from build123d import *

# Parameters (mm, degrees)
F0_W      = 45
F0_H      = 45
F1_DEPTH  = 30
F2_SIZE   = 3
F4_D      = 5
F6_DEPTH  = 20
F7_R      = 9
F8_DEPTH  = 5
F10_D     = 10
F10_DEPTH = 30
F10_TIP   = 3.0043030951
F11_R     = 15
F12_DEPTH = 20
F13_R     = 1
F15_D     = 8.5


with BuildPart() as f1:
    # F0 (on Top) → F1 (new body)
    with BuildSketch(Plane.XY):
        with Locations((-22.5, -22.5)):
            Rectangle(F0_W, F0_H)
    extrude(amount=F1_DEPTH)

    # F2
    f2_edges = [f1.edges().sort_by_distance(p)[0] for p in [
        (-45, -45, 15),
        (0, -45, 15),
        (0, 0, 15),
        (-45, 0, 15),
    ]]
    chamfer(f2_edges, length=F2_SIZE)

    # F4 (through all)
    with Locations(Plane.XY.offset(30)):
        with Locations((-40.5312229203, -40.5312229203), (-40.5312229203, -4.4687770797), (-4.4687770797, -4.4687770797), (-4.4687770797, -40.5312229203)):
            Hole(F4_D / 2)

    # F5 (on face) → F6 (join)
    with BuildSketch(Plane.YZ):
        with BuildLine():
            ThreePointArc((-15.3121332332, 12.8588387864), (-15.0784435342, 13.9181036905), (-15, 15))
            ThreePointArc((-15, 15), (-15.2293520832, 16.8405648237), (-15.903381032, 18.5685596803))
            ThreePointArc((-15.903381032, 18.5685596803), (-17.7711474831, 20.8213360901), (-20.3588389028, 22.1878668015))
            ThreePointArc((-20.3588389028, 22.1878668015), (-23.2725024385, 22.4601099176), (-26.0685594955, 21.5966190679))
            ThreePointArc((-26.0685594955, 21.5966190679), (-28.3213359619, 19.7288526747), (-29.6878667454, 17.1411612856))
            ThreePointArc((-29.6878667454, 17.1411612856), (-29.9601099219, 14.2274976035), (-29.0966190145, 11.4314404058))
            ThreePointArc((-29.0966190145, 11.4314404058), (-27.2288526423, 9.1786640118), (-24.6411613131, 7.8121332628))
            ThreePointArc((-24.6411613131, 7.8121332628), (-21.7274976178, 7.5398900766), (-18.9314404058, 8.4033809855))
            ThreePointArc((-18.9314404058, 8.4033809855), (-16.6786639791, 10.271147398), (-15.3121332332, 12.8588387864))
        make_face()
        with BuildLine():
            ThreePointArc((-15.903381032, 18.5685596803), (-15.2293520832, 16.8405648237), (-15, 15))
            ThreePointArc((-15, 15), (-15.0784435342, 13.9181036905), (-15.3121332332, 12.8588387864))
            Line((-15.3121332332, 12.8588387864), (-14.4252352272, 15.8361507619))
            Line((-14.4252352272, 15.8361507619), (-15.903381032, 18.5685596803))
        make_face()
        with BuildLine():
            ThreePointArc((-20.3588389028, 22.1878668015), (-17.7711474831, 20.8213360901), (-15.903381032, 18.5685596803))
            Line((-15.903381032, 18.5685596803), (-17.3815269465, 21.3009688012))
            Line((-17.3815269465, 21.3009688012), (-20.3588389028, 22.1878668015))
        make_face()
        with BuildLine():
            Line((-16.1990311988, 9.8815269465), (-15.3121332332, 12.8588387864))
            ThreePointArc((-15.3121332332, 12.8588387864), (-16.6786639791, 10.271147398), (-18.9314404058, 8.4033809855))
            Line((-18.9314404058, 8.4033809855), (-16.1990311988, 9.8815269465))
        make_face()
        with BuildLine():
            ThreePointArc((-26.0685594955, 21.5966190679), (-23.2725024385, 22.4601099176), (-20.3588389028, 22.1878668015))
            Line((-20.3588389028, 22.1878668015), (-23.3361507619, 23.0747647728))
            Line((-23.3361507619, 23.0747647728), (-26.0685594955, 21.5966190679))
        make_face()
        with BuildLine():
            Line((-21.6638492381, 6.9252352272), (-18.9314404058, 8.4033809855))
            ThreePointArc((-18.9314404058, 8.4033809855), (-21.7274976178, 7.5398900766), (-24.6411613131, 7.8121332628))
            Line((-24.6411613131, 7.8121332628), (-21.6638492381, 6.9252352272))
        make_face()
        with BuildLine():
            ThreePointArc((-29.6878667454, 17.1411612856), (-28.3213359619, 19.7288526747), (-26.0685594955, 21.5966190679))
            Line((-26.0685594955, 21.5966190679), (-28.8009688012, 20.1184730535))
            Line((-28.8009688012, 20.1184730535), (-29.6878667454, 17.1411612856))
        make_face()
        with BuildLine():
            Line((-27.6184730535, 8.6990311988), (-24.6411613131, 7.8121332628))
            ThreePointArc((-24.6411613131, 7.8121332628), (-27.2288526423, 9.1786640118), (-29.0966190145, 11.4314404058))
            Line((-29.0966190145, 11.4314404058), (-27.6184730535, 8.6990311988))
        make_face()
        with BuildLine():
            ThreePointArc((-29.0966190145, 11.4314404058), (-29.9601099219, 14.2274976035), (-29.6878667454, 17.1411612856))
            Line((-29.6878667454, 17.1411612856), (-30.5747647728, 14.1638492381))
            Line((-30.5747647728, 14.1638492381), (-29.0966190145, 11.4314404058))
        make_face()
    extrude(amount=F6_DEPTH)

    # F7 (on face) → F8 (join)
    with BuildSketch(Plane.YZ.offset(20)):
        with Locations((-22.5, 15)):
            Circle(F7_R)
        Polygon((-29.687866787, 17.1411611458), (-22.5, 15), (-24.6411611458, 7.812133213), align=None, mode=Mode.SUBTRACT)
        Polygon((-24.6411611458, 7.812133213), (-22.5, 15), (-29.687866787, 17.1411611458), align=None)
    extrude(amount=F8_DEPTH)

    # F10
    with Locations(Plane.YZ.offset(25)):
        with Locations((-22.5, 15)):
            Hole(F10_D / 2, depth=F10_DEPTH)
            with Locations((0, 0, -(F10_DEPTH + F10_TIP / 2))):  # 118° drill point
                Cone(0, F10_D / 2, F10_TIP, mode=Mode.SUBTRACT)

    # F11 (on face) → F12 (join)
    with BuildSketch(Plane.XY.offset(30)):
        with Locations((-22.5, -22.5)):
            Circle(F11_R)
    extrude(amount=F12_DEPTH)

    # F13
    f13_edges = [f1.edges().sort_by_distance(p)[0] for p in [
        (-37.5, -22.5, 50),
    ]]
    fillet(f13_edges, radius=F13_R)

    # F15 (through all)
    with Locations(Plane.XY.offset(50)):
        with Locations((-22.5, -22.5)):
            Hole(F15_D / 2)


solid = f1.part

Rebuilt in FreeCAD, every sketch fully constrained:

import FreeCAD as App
import Part
import Sketcher


def edges_at(feature, points):
    """Names of the edges that pass closest to the given points."""
    edges = feature.Shape.Edges
    near = lambda p: min(range(len(edges)), key=lambda i: edges[i].distToShape(Part.Vertex(*p))[0])
    return sorted({f"Edge{near(p) + 1}" for p in points})

doc = App.newDocument("Part")
body = doc.addObject("PartDesign::Body", "Body")

# Sketch on XY plane
sketch1 = doc.addObject("Sketcher::SketchObject", "Sketch")
body.addObject(sketch1)
sketch1.AttachmentSupport = (doc.XY_Plane, [""])
sketch1.MapMode = "FlatFace"
sketch1.addGeometry(Part.LineSegment(App.Vector(-45, 0, 0), App.Vector(-45, -45, 0)), False)
sketch1.addGeometry(Part.LineSegment(App.Vector(-45, -45, 0), App.Vector(0, -45, 0)), False)
sketch1.addGeometry(Part.LineSegment(App.Vector(0, -45, 0), App.Vector(0, 0, 0)), False)
sketch1.addGeometry(Part.LineSegment(App.Vector(0, 0, 0), App.Vector(-45, 0, 0)), False)
sketch1.addConstraint(Sketcher.Constraint("Coincident", 0, 2, 1, 1))
sketch1.addConstraint(Sketcher.Constraint("Coincident", 1, 2, 2, 1))
sketch1.addConstraint(Sketcher.Constraint("Coincident", 2, 2, 3, 1))
sketch1.addConstraint(Sketcher.Constraint("Coincident", 3, 2, 0, 1))
sketch1.addConstraint(Sketcher.Constraint("Vertical", 0))
sketch1.addConstraint(Sketcher.Constraint("Horizontal", 1))
sketch1.addConstraint(Sketcher.Constraint("Vertical", 2))
sketch1.addConstraint(Sketcher.Constraint("Horizontal", 3))
sketch1.addConstraint(Sketcher.Constraint("Coincident", 2, 2, -1, 1))
sketch1.addConstraint(Sketcher.Constraint("Equal", 3, 0))
sketch1.addConstraint(Sketcher.Constraint("DistanceX", 1, 1, 1, 2, 45.0))
pad1 = doc.addObject("PartDesign::Pad", "Pad")
body.addObject(pad1)
pad1.Profile = sketch1
pad1.Length = 30
doc.recompute()

chamfer = doc.addObject("PartDesign::Chamfer", "Chamfer")
body.addObject(chamfer)
chamfer.Base = (pad1, edges_at(pad1, [
    (-45, -45, 15),
    (0, -45, 15),
    (0, 0, 15),
    (-45, 0, 15),
]))
chamfer.Size = 3

# Sketch on XY plane
sketch2 = doc.addObject("Sketcher::SketchObject", "Sketch001")
body.addObject(sketch2)
sketch2.AttachmentSupport = (doc.XY_Plane, [""])
sketch2.MapMode = "FlatFace"
sketch2.AttachmentOffset = App.Placement(App.Vector(0, 0, 30), App.Rotation())
sketch2.addGeometry(Part.Circle(App.Vector(-40.5, -40.5, 0), App.Vector(0, 0, 1), 2.5), False)
sketch2.addGeometry(Part.Circle(App.Vector(-40.5, -4.5, 0), App.Vector(0, 0, 1), 2.5), False)
sketch2.addGeometry(Part.Circle(App.Vector(-4.5, -4.5, 0), App.Vector(0, 0, 1), 2.5), False)
sketch2.addGeometry(Part.Circle(App.Vector(-4.5, -40.5, 0), App.Vector(0, 0, 1), 2.5), False)
sketch2.addConstraint(Sketcher.Constraint("Equal", 0, 1))
sketch2.addConstraint(Sketcher.Constraint("Equal", 1, 2))
sketch2.addConstraint(Sketcher.Constraint("Equal", 2, 3))
sketch2.addConstraint(Sketcher.Constraint("Horizontal", 1, 3, 2, 3))
sketch2.addConstraint(Sketcher.Constraint("Horizontal", 0, 3, 3, 3))
sketch2.addConstraint(Sketcher.Constraint("Vertical", 0, 3, 1, 3))
sketch2.addConstraint(Sketcher.Constraint("Vertical", 2, 3, 3, 3))
sketch2.addConstraint(Sketcher.Constraint("Diameter", 0, 5.0))
sketch2.addConstraint(Sketcher.Constraint("DistanceX", 0, 3, -1, 1, 40.531223))
sketch2.addConstraint(Sketcher.Constraint("DistanceY", 0, 3, -1, 1, 40.531223))
sketch2.addConstraint(Sketcher.Constraint("DistanceY", 1, 3, -1, 1, 4.468777))
sketch2.addConstraint(Sketcher.Constraint("DistanceX", 2, 3, -1, 1, 4.468777))
doc.recompute()
hole = doc.addObject("PartDesign::Hole", "Hole")
body.addObject(hole)
hole.Profile = sketch2
hole.ThreadType = "None"
hole.Diameter = 5
hole.DepthType = "ThroughAll"

# Sketch on YZ plane
sketch3 = doc.addObject("Sketcher::SketchObject", "Sketch002")
body.addObject(sketch3)
sketch3.AttachmentSupport = (doc.YZ_Plane, [""])
sketch3.MapMode = "FlatFace"
sketch3.addGeometry(Part.LineSegment(App.Vector(-27.6, 8.7, 0), App.Vector(-24.6, 7.8, 0)), False)
sketch3.addGeometry(Part.LineSegment(App.Vector(-24.6, 7.8, 0), App.Vector(-21.7, 6.9, 0)), False)
sketch3.addGeometry(Part.LineSegment(App.Vector(-21.7, 6.9, 0), App.Vector(-16.2, 9.9, 0)), False)
sketch3.addGeometry(Part.LineSegment(App.Vector(-16.2, 9.9, 0), App.Vector(-15.3, 12.9, 0)), False)
sketch3.addGeometry(Part.LineSegment(App.Vector(-15.3, 12.9, 0), App.Vector(-14.4, 15.8, 0)), False)
sketch3.addGeometry(Part.LineSegment(App.Vector(-14.4, 15.8, 0), App.Vector(-15.9, 18.6, 0)), False)
sketch3.addGeometry(Part.LineSegment(App.Vector(-15.9, 18.6, 0), App.Vector(-17.4, 21.3, 0)), False)
sketch3.addGeometry(Part.LineSegment(App.Vector(-17.4, 21.3, 0), App.Vector(-20.4, 22.2, 0)), False)
sketch3.addGeometry(Part.LineSegment(App.Vector(-20.4, 22.2, 0), App.Vector(-23.3, 23.1, 0)), False)
sketch3.addGeometry(Part.LineSegment(App.Vector(-23.3, 23.1, 0), App.Vector(-26.1, 21.6, 0)), False)
sketch3.addGeometry(Part.LineSegment(App.Vector(-26.1, 21.6, 0), App.Vector(-28.8, 20.1, 0)), False)
sketch3.addGeometry(Part.LineSegment(App.Vector(-28.8, 20.1, 0), App.Vector(-29.7, 17.1, 0)), False)
sketch3.addGeometry(Part.LineSegment(App.Vector(-29.7, 17.1, 0), App.Vector(-30.6, 14.2, 0)), False)
sketch3.addGeometry(Part.LineSegment(App.Vector(-30.6, 14.2, 0), App.Vector(-27.6, 8.7, 0)), False)
sketch3.addConstraint(Sketcher.Constraint("Coincident", 0, 2, 1, 1))
sketch3.addConstraint(Sketcher.Constraint("Coincident", 1, 2, 2, 1))
sketch3.addConstraint(Sketcher.Constraint("Coincident", 2, 2, 3, 1))
sketch3.addConstraint(Sketcher.Constraint("Coincident", 3, 2, 4, 1))
sketch3.addConstraint(Sketcher.Constraint("Coincident", 4, 2, 5, 1))
sketch3.addConstraint(Sketcher.Constraint("Coincident", 5, 2, 6, 1))
sketch3.addConstraint(Sketcher.Constraint("Coincident", 6, 2, 7, 1))
sketch3.addConstraint(Sketcher.Constraint("Coincident", 7, 2, 8, 1))
sketch3.addConstraint(Sketcher.Constraint("Coincident", 8, 2, 9, 1))
sketch3.addConstraint(Sketcher.Constraint("Coincident", 9, 2, 10, 1))
sketch3.addConstraint(Sketcher.Constraint("Coincident", 10, 2, 11, 1))
sketch3.addConstraint(Sketcher.Constraint("Coincident", 11, 2, 12, 1))
sketch3.addConstraint(Sketcher.Constraint("Coincident", 12, 2, 13, 1))
sketch3.addConstraint(Sketcher.Constraint("Coincident", 13, 2, 0, 1))
sketch3.addConstraint(Sketcher.Constraint("Parallel", 0, 1))
sketch3.addConstraint(Sketcher.Constraint("Perpendicular", 1, 3))
sketch3.addConstraint(Sketcher.Constraint("Parallel", 3, 4))
sketch3.addConstraint(Sketcher.Constraint("Perpendicular", 2, 5))
sketch3.addConstraint(Sketcher.Constraint("Parallel", 5, 6))
sketch3.addConstraint(Sketcher.Constraint("Perpendicular", 4, 7))
sketch3.addConstraint(Sketcher.Constraint("Parallel", 7, 8))
sketch3.addConstraint(Sketcher.Constraint("Perpendicular", 6, 9))
sketch3.addConstraint(Sketcher.Constraint("Parallel", 9, 10))
sketch3.addConstraint(Sketcher.Constraint("Perpendicular", 8, 11))
sketch3.addConstraint(Sketcher.Constraint("Parallel", 11, 12))
sketch3.addConstraint(Sketcher.Constraint("Perpendicular", 10, 13))
sketch3.addConstraint(Sketcher.Constraint("Equal", 0, 1))
sketch3.addConstraint(Sketcher.Constraint("Equal", 1, 3))
sketch3.addConstraint(Sketcher.Constraint("Equal", 3, 4))
sketch3.addConstraint(Sketcher.Constraint("Equal", 4, 5))
sketch3.addConstraint(Sketcher.Constraint("Equal", 5, 6))
sketch3.addConstraint(Sketcher.Constraint("Equal", 6, 7))
sketch3.addConstraint(Sketcher.Constraint("Equal", 7, 8))
sketch3.addConstraint(Sketcher.Constraint("Equal", 8, 9))
sketch3.addConstraint(Sketcher.Constraint("Equal", 9, 10))
sketch3.addConstraint(Sketcher.Constraint("Equal", 10, 11))
sketch3.addConstraint(Sketcher.Constraint("Equal", 11, 12))
sketch3.addConstraint(Sketcher.Constraint("Distance", 0, 3.106602))
sketch3.addConstraint(Sketcher.Constraint("DistanceY", 1, 2, 0, 2, 0.886898))
sketch3.addConstraint(Sketcher.Constraint("DistanceX", 0, 2, -1, 1, 24.641161))
sketch3.addConstraint(Sketcher.Constraint("DistanceX", 2, 2, -1, 1, 16.199031))
sketch3.addConstraint(Sketcher.Constraint("DistanceY", -1, 1, 3, 2, 12.858839))
pad2 = doc.addObject("PartDesign::Pad", "Pad001")
body.addObject(pad2)
pad2.Profile = sketch3
pad2.Length = 20

# Sketch on YZ plane
sketch4 = doc.addObject("Sketcher::SketchObject", "Sketch003")
body.addObject(sketch4)
sketch4.AttachmentSupport = (doc.YZ_Plane, [""])
sketch4.MapMode = "FlatFace"
sketch4.AttachmentOffset = App.Placement(App.Vector(0, 0, 20), App.Rotation())
sketch4.addGeometry(Part.Circle(App.Vector(-22, 15, 0), App.Vector(0, 0, 1), 9), False)
sketch4.addConstraint(Sketcher.Constraint("Diameter", 0, 18.0))
sketch4.addConstraint(Sketcher.Constraint("DistanceY", -1, 1, 0, 3, 15.0))
sketch4.addConstraint(Sketcher.Constraint("DistanceX", 0, 3, -1, 1, 22.5))
pad3 = doc.addObject("PartDesign::Pad", "Pad002")
body.addObject(pad3)
pad3.Profile = sketch4
pad3.Length = 5

# Sketch on YZ plane
sketch5 = doc.addObject("Sketcher::SketchObject", "Sketch004")
body.addObject(sketch5)
sketch5.AttachmentSupport = (doc.YZ_Plane, [""])
sketch5.MapMode = "FlatFace"
sketch5.AttachmentOffset = App.Placement(App.Vector(0, 0, 25), App.Rotation())
sketch5.addGeometry(Part.Circle(App.Vector(-22, 15, 0), App.Vector(0, 0, 1), 5), False)
sketch5.addConstraint(Sketcher.Constraint("Diameter", 0, 10.0))
sketch5.addConstraint(Sketcher.Constraint("DistanceY", -1, 1, 0, 3, 15.0))
sketch5.addConstraint(Sketcher.Constraint("DistanceX", 0, 3, -1, 1, 22.5))
doc.recompute()
hole2 = doc.addObject("PartDesign::Hole", "Hole001")
body.addObject(hole2)
hole2.Profile = sketch5
hole2.ThreadType = "None"
hole2.Diameter = 10
hole2.DepthType = "Dimension"
hole2.Depth = 30
hole2.DrillPoint = "Angled"
hole2.DrillPointAngle = 118

# Sketch on XY plane
sketch6 = doc.addObject("Sketcher::SketchObject", "Sketch005")
body.addObject(sketch6)
sketch6.AttachmentSupport = (doc.XY_Plane, [""])
sketch6.MapMode = "FlatFace"
sketch6.AttachmentOffset = App.Placement(App.Vector(0, 0, 30), App.Rotation())
sketch6.addGeometry(Part.Circle(App.Vector(-22, -22, 0), App.Vector(0, 0, 1), 15), False)
sketch6.addConstraint(Sketcher.Constraint("Diameter", 0, 30.0))
sketch6.addConstraint(Sketcher.Constraint("DistanceX", 0, 3, -1, 1, 22.5))
sketch6.addConstraint(Sketcher.Constraint("DistanceY", 0, 3, -1, 1, 22.5))
pad4 = doc.addObject("PartDesign::Pad", "Pad003")
body.addObject(pad4)
pad4.Profile = sketch6
pad4.Length = 20
doc.recompute()

fillet = doc.addObject("PartDesign::Fillet", "Fillet")
body.addObject(fillet)
fillet.Base = (pad4, edges_at(pad4, [(-37.5, -22.5, 50)]))
fillet.Radius = 1

# Sketch on XY plane
sketch7 = doc.addObject("Sketcher::SketchObject", "Sketch006")
body.addObject(sketch7)
sketch7.AttachmentSupport = (doc.XY_Plane, [""])
sketch7.MapMode = "FlatFace"
sketch7.AttachmentOffset = App.Placement(App.Vector(0, 0, 50), App.Rotation())
sketch7.addGeometry(Part.Circle(App.Vector(-22.5, -22.5, 0), App.Vector(0, 0, 1), 4.2), False)
sketch7.addConstraint(Sketcher.Constraint("Diameter", 0, 8.5))
sketch7.addConstraint(Sketcher.Constraint("DistanceX", 0, 3, -1, 1, 22.5))
sketch7.addConstraint(Sketcher.Constraint("DistanceY", 0, 3, -1, 1, 22.5))
doc.recompute()
hole3 = doc.addObject("PartDesign::Hole", "Hole002")
body.addObject(hole3)
hole3.Profile = sketch7
hole3.ThreadType = "None"
hole3.Diameter = 8.5
hole3.DepthType = "ThroughAll"

doc.recompute()
